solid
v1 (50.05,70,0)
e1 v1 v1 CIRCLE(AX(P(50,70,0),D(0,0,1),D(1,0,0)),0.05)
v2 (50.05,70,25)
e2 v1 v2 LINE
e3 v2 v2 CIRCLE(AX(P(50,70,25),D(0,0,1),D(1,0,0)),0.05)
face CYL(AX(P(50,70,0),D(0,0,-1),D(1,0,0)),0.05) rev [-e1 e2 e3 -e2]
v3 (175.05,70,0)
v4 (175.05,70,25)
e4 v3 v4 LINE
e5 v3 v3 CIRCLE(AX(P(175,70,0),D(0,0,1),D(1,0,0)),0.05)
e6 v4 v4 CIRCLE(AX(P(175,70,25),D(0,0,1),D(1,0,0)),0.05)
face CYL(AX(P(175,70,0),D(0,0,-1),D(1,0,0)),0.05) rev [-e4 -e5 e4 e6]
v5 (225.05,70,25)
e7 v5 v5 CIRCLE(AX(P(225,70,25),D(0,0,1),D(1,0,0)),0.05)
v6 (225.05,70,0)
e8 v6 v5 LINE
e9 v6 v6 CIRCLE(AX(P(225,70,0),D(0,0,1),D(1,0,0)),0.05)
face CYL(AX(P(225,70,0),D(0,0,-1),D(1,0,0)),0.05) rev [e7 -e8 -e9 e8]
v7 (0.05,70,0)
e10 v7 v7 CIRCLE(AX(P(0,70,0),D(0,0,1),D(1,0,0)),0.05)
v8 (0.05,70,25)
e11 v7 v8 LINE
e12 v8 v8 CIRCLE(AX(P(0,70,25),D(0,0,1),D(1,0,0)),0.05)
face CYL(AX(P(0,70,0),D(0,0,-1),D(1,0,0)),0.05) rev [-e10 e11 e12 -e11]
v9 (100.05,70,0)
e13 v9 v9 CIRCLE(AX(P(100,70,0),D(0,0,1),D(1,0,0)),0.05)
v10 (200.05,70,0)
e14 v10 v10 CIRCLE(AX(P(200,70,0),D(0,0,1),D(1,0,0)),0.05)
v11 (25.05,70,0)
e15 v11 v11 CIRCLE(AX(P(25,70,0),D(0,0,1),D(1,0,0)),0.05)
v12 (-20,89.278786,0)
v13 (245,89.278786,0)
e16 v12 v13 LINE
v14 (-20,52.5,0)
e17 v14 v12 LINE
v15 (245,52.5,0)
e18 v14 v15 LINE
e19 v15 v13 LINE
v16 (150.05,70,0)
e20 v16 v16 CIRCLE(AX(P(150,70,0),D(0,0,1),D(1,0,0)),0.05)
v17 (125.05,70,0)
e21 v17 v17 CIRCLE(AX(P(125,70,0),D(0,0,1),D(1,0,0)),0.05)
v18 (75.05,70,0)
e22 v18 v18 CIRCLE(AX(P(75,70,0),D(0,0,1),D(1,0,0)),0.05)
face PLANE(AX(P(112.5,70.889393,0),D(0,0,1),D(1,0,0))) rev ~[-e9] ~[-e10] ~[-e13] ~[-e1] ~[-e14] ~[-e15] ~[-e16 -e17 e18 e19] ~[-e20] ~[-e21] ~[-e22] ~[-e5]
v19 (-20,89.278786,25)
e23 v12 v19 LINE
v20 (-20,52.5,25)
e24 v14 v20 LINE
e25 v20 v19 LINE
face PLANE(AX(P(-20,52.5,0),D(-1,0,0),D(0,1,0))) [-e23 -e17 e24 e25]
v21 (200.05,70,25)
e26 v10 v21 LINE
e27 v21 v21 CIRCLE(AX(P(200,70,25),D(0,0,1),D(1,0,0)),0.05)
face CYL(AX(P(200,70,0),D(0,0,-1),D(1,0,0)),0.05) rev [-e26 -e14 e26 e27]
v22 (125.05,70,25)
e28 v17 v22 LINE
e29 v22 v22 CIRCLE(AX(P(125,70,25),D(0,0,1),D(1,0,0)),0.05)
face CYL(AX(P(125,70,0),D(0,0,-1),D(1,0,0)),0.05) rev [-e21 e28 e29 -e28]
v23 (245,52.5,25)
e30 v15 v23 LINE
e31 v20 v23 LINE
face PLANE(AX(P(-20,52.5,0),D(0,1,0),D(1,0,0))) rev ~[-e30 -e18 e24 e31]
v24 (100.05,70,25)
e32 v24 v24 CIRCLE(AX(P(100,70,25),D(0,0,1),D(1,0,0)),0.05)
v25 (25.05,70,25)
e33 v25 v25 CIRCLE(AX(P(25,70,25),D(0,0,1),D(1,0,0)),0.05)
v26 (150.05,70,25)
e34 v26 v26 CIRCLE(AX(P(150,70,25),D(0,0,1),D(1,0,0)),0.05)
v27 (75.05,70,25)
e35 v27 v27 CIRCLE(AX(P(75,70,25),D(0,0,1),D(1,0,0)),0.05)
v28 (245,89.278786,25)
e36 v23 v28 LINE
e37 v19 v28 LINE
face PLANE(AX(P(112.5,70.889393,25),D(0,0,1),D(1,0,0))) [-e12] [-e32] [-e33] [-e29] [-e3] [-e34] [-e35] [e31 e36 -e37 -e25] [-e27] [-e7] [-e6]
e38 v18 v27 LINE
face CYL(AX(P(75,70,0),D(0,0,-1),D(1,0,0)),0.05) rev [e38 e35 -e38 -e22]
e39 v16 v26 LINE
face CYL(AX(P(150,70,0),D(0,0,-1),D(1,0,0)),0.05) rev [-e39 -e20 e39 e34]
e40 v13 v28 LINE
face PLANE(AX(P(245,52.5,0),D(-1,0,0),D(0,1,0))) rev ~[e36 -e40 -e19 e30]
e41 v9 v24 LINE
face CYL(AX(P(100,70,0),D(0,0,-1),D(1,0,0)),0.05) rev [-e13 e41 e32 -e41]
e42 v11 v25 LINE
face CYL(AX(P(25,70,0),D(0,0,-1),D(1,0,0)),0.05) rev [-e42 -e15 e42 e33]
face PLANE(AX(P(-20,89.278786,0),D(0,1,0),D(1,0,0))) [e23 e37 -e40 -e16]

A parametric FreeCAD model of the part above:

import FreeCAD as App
import Part
import Sketcher

V = App.Vector
Q = App.Units.Quantity

doc = App.newDocument("Part")
params = doc.addObject("Spreadsheet::Sheet", "Params")
for row, (alias, value) in enumerate([
    ("sketch1_diameter", "0.1 mm"),
    ("sketch1_width", "265 mm"),
    ("pad1_length", "25 mm"),
], start=1):
    params.set(f"A{row}", alias)
    params.set(f"B{row}", "=" + value)
    params.setAlias(f"B{row}", alias)

body = doc.addObject("PartDesign::Body", "Body")

# Sketch on XY plane
sketch1 = body.newObject("Sketcher::SketchObject", "Sketch")
sketch1.AttachmentSupport = (doc.getObject("XY_Plane"), [""])
sketch1.MapMode = "FlatFace"
sketch1.addGeometry([
    Part.LineSegment(V(-20, 89.278786, 0), V(-20, 52.5, 0)),  # 0
    Part.LineSegment(V(-20, 52.5, 0), V(245, 52.5, 0)),  # 1
    Part.LineSegment(V(245, 52.5, 0), V(245, 89.278786, 0)),  # 2
    Part.LineSegment(V(245, 89.278786, 0), V(-20, 89.278786, 0)),  # 3
    Part.Circle(V(0, 70, 0), V(0, 0, 1), 0.05),  # 4
    Part.Circle(V(25, 70, 0), V(0, 0, 1), 0.05),  # 5
    Part.Circle(V(50, 70, 0), V(0, 0, 1), 0.05),  # 6
    Part.Circle(V(75, 70, 0), V(0, 0, 1), 0.05),  # 7
    Part.Circle(V(100, 70, 0), V(0, 0, 1), 0.05),  # 8
    Part.Circle(V(125, 70, 0), V(0, 0, 1), 0.05),  # 9
    Part.Circle(V(150, 70, 0), V(0, 0, 1), 0.05),  # 10
    Part.Circle(V(175, 70, 0), V(0, 0, 1), 0.05),  # 11
    Part.Circle(V(200, 70, 0), V(0, 0, 1), 0.05),  # 12
    Part.Circle(V(225, 70, 0), V(0, 0, 1), 0.05),  # 13
], False)
sketch1.addConstraint([
    Sketcher.Constraint("Coincident", 0, 2, 1, 1),
    Sketcher.Constraint("Coincident", 1, 2, 2, 1),
    Sketcher.Constraint("Coincident", 2, 2, 3, 1),
    Sketcher.Constraint("Coincident", 3, 2, 0, 1),
    Sketcher.Constraint("Vertical", 0),
    Sketcher.Constraint("Horizontal", 1),
    Sketcher.Constraint("Vertical", 2),
    Sketcher.Constraint("Horizontal", 3),
    Sketcher.Constraint("Equal", 4, 5),
    Sketcher.Constraint("Equal", 5, 6),
    Sketcher.Constraint("Equal", 6, 7),
    Sketcher.Constraint("Equal", 7, 8),
    Sketcher.Constraint("Equal", 8, 9),
    Sketcher.Constraint("Equal", 9, 10),
    Sketcher.Constraint("Equal", 10, 11),
    Sketcher.Constraint("Equal", 11, 12),
    Sketcher.Constraint("Equal", 12, 13),
    Sketcher.Constraint("PointOnObject", 4, 3, -2),
    Sketcher.Constraint("Horizontal", 4, 3, 5, 3),
    Sketcher.Constraint("Horizontal", 5, 3, 6, 3),
    Sketcher.Constraint("Horizontal", 6, 3, 7, 3),
    Sketcher.Constraint("Horizontal", 7, 3, 8, 3),
    Sketcher.Constraint("Horizontal", 8, 3, 9, 3),
    Sketcher.Constraint("Horizontal", 9, 3, 10, 3),
    Sketcher.Constraint("Horizontal", 10, 3, 11, 3),
    Sketcher.Constraint("Horizontal", 11, 3, 12, 3),
    Sketcher.Constraint("Horizontal", 12, 3, 13, 3),
    Sketcher.Constraint("Diameter", 4, Q("0.1 mm")),
    Sketcher.Constraint("DistanceX", 1, 1, 1, 2, Q("265 mm")),
    Sketcher.Constraint("DistanceY", -1, 1, 4, 3, Q("70 mm")),
    Sketcher.Constraint("DistanceX", -1, 1, 5, 3, Q("25 mm")),
    Sketcher.Constraint("DistanceX", -1, 1, 6, 3, Q("50 mm")),
    Sketcher.Constraint("DistanceX", -1, 1, 7, 3, Q("75 mm")),
    Sketcher.Constraint("DistanceX", -1, 1, 8, 3, Q("100 mm")),
    Sketcher.Constraint("DistanceX", -1, 1, 9, 3, Q("125 mm")),
    Sketcher.Constraint("DistanceX", -1, 1, 10, 3, Q("150 mm")),
    Sketcher.Constraint("DistanceX", -1, 1, 11, 3, Q("175 mm")),
    Sketcher.Constraint("DistanceX", -1, 1, 12, 3, Q("200 mm")),
    Sketcher.Constraint("DistanceX", -1, 1, 13, 3, Q("225 mm")),
    Sketcher.Constraint("DistanceX", 0, 2, -1, 1, Q("20 mm")),
    Sketcher.Constraint("DistanceY", -1, 1, 0, 2, Q("52.5 mm")),
    Sketcher.Constraint("DistanceY", 0, 2, 0, 1, Q("36.778787 mm")),
])
sketch1.setExpression("Constraints[27]", "Params.sketch1_diameter")
sketch1.setExpression("Constraints[28]", "Params.sketch1_width")
pad1 = body.newObject("PartDesign::Pad", "Pad")
pad1.Profile = sketch1
pad1.setExpression("Length", "Params.pad1_length")

doc.recompute()
